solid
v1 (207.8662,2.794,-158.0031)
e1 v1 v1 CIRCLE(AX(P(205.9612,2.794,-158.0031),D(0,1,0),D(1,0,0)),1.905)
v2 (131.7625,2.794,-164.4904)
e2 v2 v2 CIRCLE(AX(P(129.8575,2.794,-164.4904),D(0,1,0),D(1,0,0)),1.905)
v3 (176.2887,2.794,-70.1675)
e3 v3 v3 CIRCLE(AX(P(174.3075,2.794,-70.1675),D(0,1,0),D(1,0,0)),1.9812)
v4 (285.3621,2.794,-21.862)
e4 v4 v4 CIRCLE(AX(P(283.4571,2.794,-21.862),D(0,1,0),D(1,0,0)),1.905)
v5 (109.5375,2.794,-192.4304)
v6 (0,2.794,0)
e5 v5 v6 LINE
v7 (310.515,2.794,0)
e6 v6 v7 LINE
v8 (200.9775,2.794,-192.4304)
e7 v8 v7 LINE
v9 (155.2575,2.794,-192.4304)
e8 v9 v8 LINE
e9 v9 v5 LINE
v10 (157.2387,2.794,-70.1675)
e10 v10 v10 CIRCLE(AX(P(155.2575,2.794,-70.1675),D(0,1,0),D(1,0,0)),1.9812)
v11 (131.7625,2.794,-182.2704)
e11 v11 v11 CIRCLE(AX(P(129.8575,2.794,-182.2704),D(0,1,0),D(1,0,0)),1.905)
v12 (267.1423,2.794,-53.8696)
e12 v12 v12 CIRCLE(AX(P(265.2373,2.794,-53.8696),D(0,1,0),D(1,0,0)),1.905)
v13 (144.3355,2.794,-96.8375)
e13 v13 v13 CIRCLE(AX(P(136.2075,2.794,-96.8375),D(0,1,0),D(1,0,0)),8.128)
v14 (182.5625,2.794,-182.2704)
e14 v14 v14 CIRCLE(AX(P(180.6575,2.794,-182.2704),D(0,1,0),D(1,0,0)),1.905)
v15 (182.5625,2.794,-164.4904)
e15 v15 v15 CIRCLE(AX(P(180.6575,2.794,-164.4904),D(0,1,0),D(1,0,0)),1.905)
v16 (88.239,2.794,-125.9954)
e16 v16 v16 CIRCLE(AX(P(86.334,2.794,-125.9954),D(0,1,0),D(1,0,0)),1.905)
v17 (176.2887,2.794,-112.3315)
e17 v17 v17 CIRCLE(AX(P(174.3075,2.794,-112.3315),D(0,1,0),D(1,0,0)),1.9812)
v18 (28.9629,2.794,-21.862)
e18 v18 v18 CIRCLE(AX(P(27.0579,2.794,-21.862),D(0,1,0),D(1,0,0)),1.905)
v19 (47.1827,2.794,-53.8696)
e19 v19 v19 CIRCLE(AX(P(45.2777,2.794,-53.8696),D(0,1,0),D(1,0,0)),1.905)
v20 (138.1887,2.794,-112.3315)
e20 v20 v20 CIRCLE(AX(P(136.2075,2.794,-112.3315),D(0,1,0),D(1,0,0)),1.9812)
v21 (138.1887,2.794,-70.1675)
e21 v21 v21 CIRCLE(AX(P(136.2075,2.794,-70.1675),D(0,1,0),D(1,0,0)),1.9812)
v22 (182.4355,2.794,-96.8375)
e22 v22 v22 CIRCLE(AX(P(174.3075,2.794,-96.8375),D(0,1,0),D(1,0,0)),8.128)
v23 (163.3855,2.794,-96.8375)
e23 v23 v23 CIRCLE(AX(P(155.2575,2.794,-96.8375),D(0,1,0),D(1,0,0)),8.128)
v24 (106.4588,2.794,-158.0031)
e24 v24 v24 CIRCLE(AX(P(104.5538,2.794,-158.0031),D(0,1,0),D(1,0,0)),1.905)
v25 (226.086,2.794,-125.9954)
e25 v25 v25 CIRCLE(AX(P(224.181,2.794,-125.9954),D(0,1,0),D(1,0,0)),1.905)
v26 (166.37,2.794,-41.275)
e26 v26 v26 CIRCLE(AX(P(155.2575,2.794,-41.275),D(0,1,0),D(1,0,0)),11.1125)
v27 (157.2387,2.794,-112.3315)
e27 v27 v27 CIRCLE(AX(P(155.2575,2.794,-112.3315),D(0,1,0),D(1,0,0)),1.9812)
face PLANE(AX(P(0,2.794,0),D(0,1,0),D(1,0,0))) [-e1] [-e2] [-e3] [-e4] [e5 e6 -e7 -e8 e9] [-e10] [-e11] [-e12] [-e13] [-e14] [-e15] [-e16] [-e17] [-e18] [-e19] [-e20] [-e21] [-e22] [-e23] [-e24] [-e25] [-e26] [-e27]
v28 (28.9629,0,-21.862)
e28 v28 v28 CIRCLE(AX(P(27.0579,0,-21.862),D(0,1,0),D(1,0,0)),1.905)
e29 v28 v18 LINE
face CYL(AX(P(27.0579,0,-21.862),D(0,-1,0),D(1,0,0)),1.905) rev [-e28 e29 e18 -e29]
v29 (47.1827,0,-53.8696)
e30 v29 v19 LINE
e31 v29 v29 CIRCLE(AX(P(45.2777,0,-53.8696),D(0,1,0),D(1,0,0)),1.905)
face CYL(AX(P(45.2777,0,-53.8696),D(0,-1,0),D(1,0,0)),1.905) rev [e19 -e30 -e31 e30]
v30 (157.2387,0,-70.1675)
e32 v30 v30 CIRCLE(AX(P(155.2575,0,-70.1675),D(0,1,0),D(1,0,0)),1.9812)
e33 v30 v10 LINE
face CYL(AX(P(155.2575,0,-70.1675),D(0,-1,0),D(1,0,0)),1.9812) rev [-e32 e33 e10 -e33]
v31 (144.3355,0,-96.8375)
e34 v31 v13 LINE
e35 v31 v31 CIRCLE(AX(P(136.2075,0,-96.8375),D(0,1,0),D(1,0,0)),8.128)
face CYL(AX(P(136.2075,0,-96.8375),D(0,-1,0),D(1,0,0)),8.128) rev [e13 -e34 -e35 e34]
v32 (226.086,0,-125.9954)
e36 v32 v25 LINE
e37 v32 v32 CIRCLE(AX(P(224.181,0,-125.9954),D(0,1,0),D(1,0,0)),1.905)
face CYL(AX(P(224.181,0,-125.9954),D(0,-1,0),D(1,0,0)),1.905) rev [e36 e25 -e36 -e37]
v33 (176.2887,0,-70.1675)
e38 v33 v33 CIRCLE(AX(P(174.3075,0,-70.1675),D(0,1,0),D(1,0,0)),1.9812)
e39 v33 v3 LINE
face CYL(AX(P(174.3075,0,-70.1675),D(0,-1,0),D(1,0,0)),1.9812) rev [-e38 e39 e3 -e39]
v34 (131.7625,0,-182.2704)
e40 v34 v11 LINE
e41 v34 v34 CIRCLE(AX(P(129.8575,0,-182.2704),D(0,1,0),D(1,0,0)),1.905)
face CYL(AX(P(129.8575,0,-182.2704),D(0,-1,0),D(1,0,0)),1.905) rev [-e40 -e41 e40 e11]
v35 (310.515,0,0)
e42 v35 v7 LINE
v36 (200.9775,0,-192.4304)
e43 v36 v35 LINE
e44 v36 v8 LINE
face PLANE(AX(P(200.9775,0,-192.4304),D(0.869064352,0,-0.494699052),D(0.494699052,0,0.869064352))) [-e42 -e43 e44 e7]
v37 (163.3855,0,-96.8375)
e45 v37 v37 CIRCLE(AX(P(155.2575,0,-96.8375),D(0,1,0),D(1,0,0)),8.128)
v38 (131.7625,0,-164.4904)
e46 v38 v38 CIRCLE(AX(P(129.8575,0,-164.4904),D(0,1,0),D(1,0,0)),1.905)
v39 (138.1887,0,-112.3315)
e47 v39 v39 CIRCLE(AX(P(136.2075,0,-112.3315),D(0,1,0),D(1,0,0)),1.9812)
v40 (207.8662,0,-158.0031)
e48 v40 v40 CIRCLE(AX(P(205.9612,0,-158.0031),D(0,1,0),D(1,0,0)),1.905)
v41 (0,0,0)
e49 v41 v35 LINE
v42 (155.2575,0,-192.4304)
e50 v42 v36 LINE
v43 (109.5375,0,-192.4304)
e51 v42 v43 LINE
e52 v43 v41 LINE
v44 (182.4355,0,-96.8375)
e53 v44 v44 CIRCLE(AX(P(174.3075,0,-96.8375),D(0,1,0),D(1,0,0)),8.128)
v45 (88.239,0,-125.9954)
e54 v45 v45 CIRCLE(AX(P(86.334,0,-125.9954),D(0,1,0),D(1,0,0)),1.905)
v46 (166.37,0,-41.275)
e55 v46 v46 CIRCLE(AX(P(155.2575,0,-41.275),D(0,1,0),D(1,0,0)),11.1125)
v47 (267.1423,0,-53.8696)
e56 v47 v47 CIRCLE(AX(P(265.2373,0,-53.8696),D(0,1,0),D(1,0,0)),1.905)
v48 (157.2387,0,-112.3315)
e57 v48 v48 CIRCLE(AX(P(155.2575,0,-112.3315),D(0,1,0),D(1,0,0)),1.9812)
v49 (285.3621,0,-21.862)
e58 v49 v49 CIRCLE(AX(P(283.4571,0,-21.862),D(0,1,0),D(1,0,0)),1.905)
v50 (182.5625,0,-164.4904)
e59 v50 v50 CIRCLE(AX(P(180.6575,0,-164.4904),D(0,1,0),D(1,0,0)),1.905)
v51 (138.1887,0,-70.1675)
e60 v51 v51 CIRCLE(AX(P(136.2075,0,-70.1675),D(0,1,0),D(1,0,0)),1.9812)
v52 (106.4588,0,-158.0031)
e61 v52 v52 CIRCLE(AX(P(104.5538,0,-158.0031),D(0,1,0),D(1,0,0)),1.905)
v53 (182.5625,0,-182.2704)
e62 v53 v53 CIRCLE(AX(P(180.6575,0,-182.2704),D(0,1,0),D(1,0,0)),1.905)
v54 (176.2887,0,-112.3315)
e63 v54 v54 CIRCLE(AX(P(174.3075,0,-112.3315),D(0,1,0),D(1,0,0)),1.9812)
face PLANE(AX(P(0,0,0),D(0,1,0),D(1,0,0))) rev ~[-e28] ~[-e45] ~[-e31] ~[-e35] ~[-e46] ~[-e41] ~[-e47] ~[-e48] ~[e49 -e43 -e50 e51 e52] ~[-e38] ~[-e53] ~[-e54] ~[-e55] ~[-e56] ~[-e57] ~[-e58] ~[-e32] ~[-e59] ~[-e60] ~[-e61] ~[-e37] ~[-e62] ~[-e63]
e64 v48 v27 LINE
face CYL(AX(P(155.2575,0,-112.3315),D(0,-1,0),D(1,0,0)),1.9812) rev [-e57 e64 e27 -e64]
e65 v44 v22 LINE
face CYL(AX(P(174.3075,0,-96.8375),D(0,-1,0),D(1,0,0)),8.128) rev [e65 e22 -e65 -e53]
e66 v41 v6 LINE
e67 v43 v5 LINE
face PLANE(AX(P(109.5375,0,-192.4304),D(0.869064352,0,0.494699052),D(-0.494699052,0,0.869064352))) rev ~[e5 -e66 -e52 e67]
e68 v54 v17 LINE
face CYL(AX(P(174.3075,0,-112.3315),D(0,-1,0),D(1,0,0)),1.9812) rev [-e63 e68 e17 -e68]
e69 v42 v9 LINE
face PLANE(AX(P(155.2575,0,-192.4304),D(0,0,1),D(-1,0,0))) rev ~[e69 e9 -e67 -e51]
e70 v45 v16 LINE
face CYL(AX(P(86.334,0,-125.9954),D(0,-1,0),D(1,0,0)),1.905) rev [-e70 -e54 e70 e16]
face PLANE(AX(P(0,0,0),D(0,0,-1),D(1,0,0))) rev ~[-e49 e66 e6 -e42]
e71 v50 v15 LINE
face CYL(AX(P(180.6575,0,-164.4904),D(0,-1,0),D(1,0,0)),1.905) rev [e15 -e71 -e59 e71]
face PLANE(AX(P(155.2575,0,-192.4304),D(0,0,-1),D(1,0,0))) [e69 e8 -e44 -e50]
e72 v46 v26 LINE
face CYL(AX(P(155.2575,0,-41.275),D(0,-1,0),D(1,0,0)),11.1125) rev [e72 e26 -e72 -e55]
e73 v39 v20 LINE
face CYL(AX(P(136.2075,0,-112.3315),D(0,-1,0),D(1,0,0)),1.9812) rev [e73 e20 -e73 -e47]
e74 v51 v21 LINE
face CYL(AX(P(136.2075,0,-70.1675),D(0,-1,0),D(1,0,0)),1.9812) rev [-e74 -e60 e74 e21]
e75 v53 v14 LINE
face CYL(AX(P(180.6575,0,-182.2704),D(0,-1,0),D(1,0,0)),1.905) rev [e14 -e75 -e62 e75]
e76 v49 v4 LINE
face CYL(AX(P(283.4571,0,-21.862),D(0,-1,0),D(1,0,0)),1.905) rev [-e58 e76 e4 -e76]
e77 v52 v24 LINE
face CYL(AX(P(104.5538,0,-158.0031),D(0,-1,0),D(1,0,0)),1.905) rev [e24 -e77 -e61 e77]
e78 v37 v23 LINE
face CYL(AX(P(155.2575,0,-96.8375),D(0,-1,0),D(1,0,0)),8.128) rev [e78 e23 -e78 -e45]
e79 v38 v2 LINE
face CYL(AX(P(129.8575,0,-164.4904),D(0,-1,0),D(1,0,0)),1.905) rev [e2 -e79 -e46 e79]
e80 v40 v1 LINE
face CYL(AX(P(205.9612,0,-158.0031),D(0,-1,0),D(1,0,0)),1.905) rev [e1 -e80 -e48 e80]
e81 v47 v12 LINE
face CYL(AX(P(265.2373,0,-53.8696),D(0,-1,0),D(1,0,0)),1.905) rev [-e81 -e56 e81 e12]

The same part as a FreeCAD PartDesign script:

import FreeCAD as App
import Part
import Sketcher
Q = App.Units.Quantity


def add_polygon(sketch, points):
    """Adds a closed chain of lines whose ends are joined by coincident constraints."""
    first, n = sketch.GeometryCount, len(points)
    for a, b in zip(points, points[1:] + points[:1]):
        sketch.addGeometry(Part.LineSegment(App.Vector(*a, 0), App.Vector(*b, 0)), False)
    for i in range(n):
        sketch.addConstraint(Sketcher.Constraint("Coincident", first + i, 2, first + (i + 1) % n, 1))

doc = App.newDocument("Part")
body = doc.addObject("PartDesign::Body", "Body")

sketch1 = body.newObject("Sketcher::SketchObject", "Sketch")
sketch1.AttachmentSupport = (doc.getObject("XZ_Plane"), [""])
sketch1.MapMode = "FlatFace"
add_polygon(sketch1, [(109.5, -192.4), (0, 0), (310.5, 0), (201, -192.4)])
sketch1.addGeometry(Part.Circle(App.Vector(27.1, -21.9, 0), App.Vector(0, 0, 1), 1.9), False)
sketch1.addGeometry(Part.Circle(App.Vector(45.3, -53.9, 0), App.Vector(0, 0, 1), 1.9), False)
sketch1.addGeometry(Part.Circle(App.Vector(136.2, -70.2, 0), App.Vector(0, 0, 1), 2), False)
sketch1.addGeometry(Part.Circle(App.Vector(155.3, -41.3, 0), App.Vector(0, 0, 1), 11.1), False)
sketch1.addGeometry(Part.Circle(App.Vector(283.5, -21.9, 0), App.Vector(0, 0, 1), 1.9), False)
sketch1.addGeometry(Part.Circle(App.Vector(155.3, -70.2, 0), App.Vector(0, 0, 1), 2), False)
sketch1.addGeometry(Part.Circle(App.Vector(174.3, -70.2, 0), App.Vector(0, 0, 1), 2), False)
sketch1.addGeometry(Part.Circle(App.Vector(265.2, -53.9, 0), App.Vector(0, 0, 1), 1.9), False)
sketch1.addGeometry(Part.Circle(App.Vector(136.2, -96.8, 0), App.Vector(0, 0, 1), 8.1), False)
sketch1.addGeometry(Part.Circle(App.Vector(136.2, -112.3, 0), App.Vector(0, 0, 1), 2), False)
sketch1.addGeometry(Part.Circle(App.Vector(86.3, -126, 0), App.Vector(0, 0, 1), 1.9), False)
sketch1.addGeometry(Part.Circle(App.Vector(104.6, -158, 0), App.Vector(0, 0, 1), 1.9), False)
sketch1.addGeometry(Part.Circle(App.Vector(129.9, -164.5, 0), App.Vector(0, 0, 1), 1.9), False)
sketch1.addGeometry(Part.Circle(App.Vector(129.9, -182.3, 0), App.Vector(0, 0, 1), 1.9), False)
sketch1.addGeometry(Part.Circle(App.Vector(155.3, -96.8, 0), App.Vector(0, 0, 1), 8.1), False)
sketch1.addGeometry(Part.Circle(App.Vector(174.3, -96.8, 0), App.Vector(0, 0, 1), 8.1), False)
sketch1.addGeometry(Part.Circle(App.Vector(155.3, -112.3, 0), App.Vector(0, 0, 1), 2), False)
sketch1.addGeometry(Part.Circle(App.Vector(174.3, -112.3, 0), App.Vector(0, 0, 1), 2), False)
sketch1.addGeometry(Part.Circle(App.Vector(224.2, -126, 0), App.Vector(0, 0, 1), 1.9), False)
sketch1.addGeometry(Part.Circle(App.Vector(180.7, -164.5, 0), App.Vector(0, 0, 1), 1.9), False)
sketch1.addGeometry(Part.Circle(App.Vector(206, -158, 0), App.Vector(0, 0, 1), 1.9), False)
sketch1.addGeometry(Part.Circle(App.Vector(180.7, -182.3, 0), App.Vector(0, 0, 1), 1.9), False)
sketch1.addConstraint([
    Sketcher.Constraint("Horizontal", 1),
    Sketcher.Constraint("Horizontal", 3),
    Sketcher.Constraint("Coincident", 0, 2, -1, 1),
    Sketcher.Constraint("Equal", 4, 5),
    Sketcher.Constraint("Equal", 5, 8),
    Sketcher.Constraint("Equal", 6, 9),
    Sketcher.Constraint("Equal", 9, 10),
    Sketcher.Constraint("Equal", 8, 11),
    Sketcher.Constraint("Equal", 10, 13),
    Sketcher.Constraint("Equal", 11, 14),
    Sketcher.Constraint("Equal", 14, 15),
    Sketcher.Constraint("Equal", 15, 16),
    Sketcher.Constraint("Equal", 16, 17),
    Sketcher.Constraint("Equal", 12, 18),
    Sketcher.Constraint("Equal", 18, 19),
    Sketcher.Constraint("Equal", 13, 20),
    Sketcher.Constraint("Equal", 20, 21),
    Sketcher.Constraint("Equal", 17, 22),
    Sketcher.Constraint("Equal", 22, 23),
    Sketcher.Constraint("Equal", 23, 24),
    Sketcher.Constraint("Equal", 24, 25),
    Sketcher.Constraint("Horizontal", 4, 3, 8, 3),
    Sketcher.Constraint("Horizontal", 6, 3, 9, 3),
    Sketcher.Constraint("Horizontal", 9, 3, 10, 3),
    Sketcher.Constraint("Horizontal", 5, 3, 11, 3),
    Sketcher.Constraint("Horizontal", 12, 3, 18, 3),
    Sketcher.Constraint("Horizontal", 18, 3, 19, 3),
    Sketcher.Constraint("Horizontal", 13, 3, 20, 3),
    Sketcher.Constraint("Horizontal", 20, 3, 21, 3),
    Sketcher.Constraint("Horizontal", 14, 3, 22, 3),
    Sketcher.Constraint("Horizontal", 16, 3, 23, 3),
    Sketcher.Constraint("Horizontal", 15, 3, 24, 3),
    Sketcher.Constraint("Horizontal", 17, 3, 25, 3),
    Sketcher.Constraint("Vertical", 7, 3, 9, 3),
    Sketcher.Constraint("Vertical", 6, 3, 12, 3),
    Sketcher.Constraint("Vertical", 12, 3, 13, 3),
    Sketcher.Constraint("Vertical", 16, 3, 17, 3),
    Sketcher.Constraint("Vertical", 9, 3, 18, 3),
    Sketcher.Constraint("Vertical", 10, 3, 19, 3),
    Sketcher.Constraint("Vertical", 18, 3, 20, 3),
    Sketcher.Constraint("Vertical", 19, 3, 21, 3),
    Sketcher.Constraint("Vertical", 23, 3, 25, 3),
    Sketcher.Constraint("Equal", 0, 2),
    Sketcher.Constraint("Diameter", 12, Q("0.64 in")),
    Sketcher.Constraint("Diameter", 6, Q("0.156 in")),
    Sketcher.Constraint("Diameter", 7, Q("0.875 in")),
    Sketcher.Constraint("Diameter", 4, Q("0.15 in")),
    Sketcher.Constraint("DistanceX", 1, 1, 1, 2, Q("12.225 in")),
    Sketcher.Constraint("DistanceY", 12, 3, 6, 3, Q("1.05 in")),
    Sketcher.Constraint("DistanceY", 13, 3, 6, 3, Q("1.66 in")),
    Sketcher.Constraint("DistanceX", 3, 2, 3, 1, Q("3.6 in")),
    Sketcher.Constraint("DistanceX", 16, 3, 23, 3, Q("2 in")),
    Sketcher.Constraint("DistanceX", 20, 3, 23, 3, Q("1 in")),
    Sketcher.Constraint("DistanceX", 6, 3, 10, 3, Q("1.5 in")),
    Sketcher.Constraint("DistanceY", 17, 3, 16, 3, Q("0.7 in")),
    Sketcher.Constraint("DistanceX", 25, 3, 2, 2, Q("0.8 in")),
    Sketcher.Constraint("DistanceY", 2, 2, 25, 3, Q("0.4 in")),
    Sketcher.Constraint("Angle", 0, Q("119.65 deg")),
    Sketcher.Constraint("DistanceX", 6, 3, 7, 3, Q("0.75 in")),
    Sketcher.Constraint("DistanceY", 7, 3, -1, 1, Q("1.625 in")),
    Sketcher.Constraint("DistanceY", 12, 3, -1, 1, Q("3.8125 in")),
    Sketcher.Constraint("DistanceY", 4, 3, -1, 1, Q("0.8607 in")),
    Sketcher.Constraint("DistanceX", -1, 1, 15, 3, Q("4.1163 in")),
    Sketcher.Constraint("DistanceY", 15, 3, -1, 1, Q("6.2206 in")),
    Sketcher.Constraint("DistanceX", -1, 1, 24, 3, Q("8.1087 in")),
    Sketcher.Constraint("DistanceX", 5, 3, 14, 3, Q("1.6164 in")),
    Sketcher.Constraint("DistanceY", 14, 3, 5, 3, Q("2.8396 in")),
    Sketcher.Constraint("DistanceX", -1, 1, 4, 3, Q("27.058 mm")),
    Sketcher.Constraint("DistanceX", -1, 1, 5, 3, Q("45.2777 mm")),
    Sketcher.Constraint("DistanceY", 5, 3, -1, 1, Q("53.8696 mm")),
    Sketcher.Constraint("DistanceX", -1, 1, 8, 3, Q("283.457 mm")),
    Sketcher.Constraint("DistanceX", -1, 1, 11, 3, Q("265.2373 mm")),
    Sketcher.Constraint("DistanceX", -1, 1, 22, 3, Q("224.181 mm")),
])
pad1 = body.newObject("PartDesign::Pad", "Pad")
pad1.Profile = sketch1
pad1.Length = Q("0.11 in")
pad1.Reversed = True

doc.recompute()
